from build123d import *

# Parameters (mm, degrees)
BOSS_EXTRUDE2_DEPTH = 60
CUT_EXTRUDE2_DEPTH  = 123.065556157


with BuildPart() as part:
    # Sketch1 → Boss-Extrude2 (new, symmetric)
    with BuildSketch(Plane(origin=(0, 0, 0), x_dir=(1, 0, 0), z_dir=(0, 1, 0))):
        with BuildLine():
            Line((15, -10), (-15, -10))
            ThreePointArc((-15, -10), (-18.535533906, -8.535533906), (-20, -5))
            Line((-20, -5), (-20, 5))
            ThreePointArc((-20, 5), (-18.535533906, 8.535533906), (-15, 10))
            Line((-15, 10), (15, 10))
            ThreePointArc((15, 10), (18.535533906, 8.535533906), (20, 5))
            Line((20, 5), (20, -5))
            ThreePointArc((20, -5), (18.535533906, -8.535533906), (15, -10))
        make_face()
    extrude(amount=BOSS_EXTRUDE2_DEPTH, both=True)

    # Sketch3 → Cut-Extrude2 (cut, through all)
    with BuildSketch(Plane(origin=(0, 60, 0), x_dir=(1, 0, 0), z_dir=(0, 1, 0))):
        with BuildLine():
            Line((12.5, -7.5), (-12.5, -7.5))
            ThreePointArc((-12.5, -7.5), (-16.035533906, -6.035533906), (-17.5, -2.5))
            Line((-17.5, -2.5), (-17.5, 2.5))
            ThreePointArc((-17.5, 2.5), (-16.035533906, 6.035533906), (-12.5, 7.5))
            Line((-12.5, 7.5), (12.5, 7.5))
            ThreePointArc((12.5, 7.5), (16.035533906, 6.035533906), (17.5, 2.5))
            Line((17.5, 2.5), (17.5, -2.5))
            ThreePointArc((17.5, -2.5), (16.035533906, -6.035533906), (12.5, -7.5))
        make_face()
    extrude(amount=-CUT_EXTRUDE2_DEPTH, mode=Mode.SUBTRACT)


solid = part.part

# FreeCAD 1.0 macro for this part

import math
import FreeCAD as App
import Part
import Sketcher

V = App.Vector

doc = App.newDocument("Part")
params = doc.addObject("Spreadsheet::Sheet", "Params")
for row, (alias, value) in enumerate([
    ("sketch1_radius", "5 mm"),
    ("sketch1_width", "30 mm"),
    ("sketch1_height", "10 mm"),
    ("pad1_length", "120 mm"),
    ("sketch2_radius", "5 mm"),
    ("sketch2_width", "25 mm"),
    ("sketch2_height", "5 mm"),
], start=1):
    params.set(f"A{row}", alias)
    params.set(f"B{row}", "=" + value)
    params.setAlias(f"B{row}", alias)

body = doc.addObject("PartDesign::Body", "Body")

sketch1 = body.newObject("Sketcher::SketchObject", "Sketch")
sketch1.AttachmentSupport = (doc.getObject("XZ_Plane"), [""])
sketch1.MapMode = "FlatFace"
sketch1.addGeometry([
    Part.LineSegment(V(-15, 10, 0), V(15, 10, 0)),
    Part.ArcOfCircle(Part.Circle(V(15, 5, 0), V(0, 0, 1), 5), math.radians(0), math.radians(90)),
    Part.LineSegment(V(20, 5, 0), V(20, -5, 0)),
    Part.ArcOfCircle(Part.Circle(V(15, -5, 0), V(0, 0, 1), 5), math.radians(-90), math.radians(0)),
    Part.LineSegment(V(15, -10, 0), V(-15, -10, 0)),
    Part.ArcOfCircle(Part.Circle(V(-15, -5, 0), V(0, 0, 1), 5), math.radians(180), math.radians(270)),
    Part.LineSegment(V(-20, -5, 0), V(-20, 5, 0)),
    Part.ArcOfCircle(Part.Circle(V(-15, 5, 0), V(0, 0, 1), 5), math.radians(90), math.radians(180)),
], False)
sketch1.addConstraint([
    Sketcher.Constraint("Tangent", 0, 2, 1, 2),
    Sketcher.Constraint("Tangent", 1, 1, 2, 1),
    Sketcher.Constraint("Tangent", 2, 2, 3, 2),
    Sketcher.Constraint("Tangent", 3, 1, 4, 1),
    Sketcher.Constraint("Tangent", 4, 2, 5, 2),
    Sketcher.Constraint("Tangent", 5, 1, 6, 1),
    Sketcher.Constraint("Tangent", 6, 2, 7, 2),
    Sketcher.Constraint("Tangent", 7, 1, 0, 1),
    Sketcher.Constraint("Horizontal", 0),
    Sketcher.Constraint("Vertical", 2),
    Sketcher.Constraint("Horizontal", 4),
    Sketcher.Constraint("Vertical", 6),
    Sketcher.Constraint("Equal", 1, 3),
    Sketcher.Constraint("Equal", 3, 5),
    Sketcher.Constraint("Equal", 5, 7),
    Sketcher.Constraint("Symmetric", 1, 3, 5, 3, -1, 1),
    Sketcher.Constraint("Radius", 1, 5.0),
    Sketcher.Constraint("DistanceX", 0, 1, 0, 2, 30.0),
    Sketcher.Constraint("DistanceY", 2, 2, 2, 1, 10.0),
])
sketch1.setExpression("Constraints[16]", "Params.sketch1_radius")
sketch1.setExpression("Constraints[17]", "Params.sketch1_width")
sketch1.setExpression("Constraints[18]", "Params.sketch1_height")
pad1 = body.newObject("PartDesign::Pad", "Pad")
pad1.Profile = sketch1
pad1.setExpression("Length", "Params.pad1_length")
pad1.Midplane = True

sketch2 = body.newObject("Sketcher::SketchObject", "Sketch001")
sketch2.AttachmentSupport = (doc.getObject("XZ_Plane"), [""])
sketch2.MapMode = "FlatFace"
sketch2.AttachmentOffset = App.Placement(V(0, 0, -60), App.Rotation())
sketch2.addGeometry([
    Part.LineSegment(V(-12.5, 7.5, 0), V(12.5, 7.5, 0)),
    Part.ArcOfCircle(Part.Circle(V(12.5, 2.5, 0), V(0, 0, 1), 5), math.radians(0), math.radians(90)),
    Part.LineSegment(V(17.5, 2.5, 0), V(17.5, -2.5, 0)),
    Part.ArcOfCircle(Part.Circle(V(12.5, -2.5, 0), V(0, 0, 1), 5), math.radians(-90), math.radians(0)),
    Part.LineSegment(V(12.5, -7.5, 0), V(-12.5, -7.5, 0)),
    Part.ArcOfCircle(Part.Circle(V(-12.5, -2.5, 0), V(0, 0, 1), 5), math.radians(180), math.radians(270)),
    Part.LineSegment(V(-17.5, -2.5, 0), V(-17.5, 2.5, 0)),
    Part.ArcOfCircle(Part.Circle(V(-12.5, 2.5, 0), V(0, 0, 1), 5), math.radians(90), math.radians(180)),
], False)
sketch2.addConstraint([
    Sketcher.Constraint("Tangent", 0, 2, 1, 2),
    Sketcher.Constraint("Tangent", 1, 1, 2, 1),
    Sketcher.Constraint("Tangent", 2, 2, 3, 2),
    Sketcher.Constraint("Tangent", 3, 1, 4, 1),
    Sketcher.Constraint("Tangent", 4, 2, 5, 2),
    Sketcher.Constraint("Tangent", 5, 1, 6, 1),
    Sketcher.Constraint("Tangent", 6, 2, 7, 2),
    Sketcher.Constraint("Tangent", 7, 1, 0, 1),
    Sketcher.Constraint("Horizontal", 0),
    Sketcher.Constraint("Vertical", 2),
    Sketcher.Constraint("Horizontal", 4),
    Sketcher.Constraint("Vertical", 6),
    Sketcher.Constraint("Equal", 1, 3),
    Sketcher.Constraint("Equal", 3, 5),
    Sketcher.Constraint("Equal", 5, 7),
    Sketcher.Constraint("Symmetric", 1, 3, 5, 3, -1, 1),
    Sketcher.Constraint("Radius", 1, 5.0),
    Sketcher.Constraint("DistanceX", 0, 1, 0, 2, 25.0),
    Sketcher.Constraint("DistanceY", 2, 2, 2, 1, 5.0),
])
sketch2.setExpression("Constraints[16]", "Params.sketch2_radius")
sketch2.setExpression("Constraints[17]", "Params.sketch2_width")
sketch2.setExpression("Constraints[18]", "Params.sketch2_height")
pocket1 = body.newObject("PartDesign::Pocket", "Pocket")
pocket1.Profile = sketch2
pocket1.Type = "ThroughAll"
pocket1.Reversed = True

doc.recompute()
